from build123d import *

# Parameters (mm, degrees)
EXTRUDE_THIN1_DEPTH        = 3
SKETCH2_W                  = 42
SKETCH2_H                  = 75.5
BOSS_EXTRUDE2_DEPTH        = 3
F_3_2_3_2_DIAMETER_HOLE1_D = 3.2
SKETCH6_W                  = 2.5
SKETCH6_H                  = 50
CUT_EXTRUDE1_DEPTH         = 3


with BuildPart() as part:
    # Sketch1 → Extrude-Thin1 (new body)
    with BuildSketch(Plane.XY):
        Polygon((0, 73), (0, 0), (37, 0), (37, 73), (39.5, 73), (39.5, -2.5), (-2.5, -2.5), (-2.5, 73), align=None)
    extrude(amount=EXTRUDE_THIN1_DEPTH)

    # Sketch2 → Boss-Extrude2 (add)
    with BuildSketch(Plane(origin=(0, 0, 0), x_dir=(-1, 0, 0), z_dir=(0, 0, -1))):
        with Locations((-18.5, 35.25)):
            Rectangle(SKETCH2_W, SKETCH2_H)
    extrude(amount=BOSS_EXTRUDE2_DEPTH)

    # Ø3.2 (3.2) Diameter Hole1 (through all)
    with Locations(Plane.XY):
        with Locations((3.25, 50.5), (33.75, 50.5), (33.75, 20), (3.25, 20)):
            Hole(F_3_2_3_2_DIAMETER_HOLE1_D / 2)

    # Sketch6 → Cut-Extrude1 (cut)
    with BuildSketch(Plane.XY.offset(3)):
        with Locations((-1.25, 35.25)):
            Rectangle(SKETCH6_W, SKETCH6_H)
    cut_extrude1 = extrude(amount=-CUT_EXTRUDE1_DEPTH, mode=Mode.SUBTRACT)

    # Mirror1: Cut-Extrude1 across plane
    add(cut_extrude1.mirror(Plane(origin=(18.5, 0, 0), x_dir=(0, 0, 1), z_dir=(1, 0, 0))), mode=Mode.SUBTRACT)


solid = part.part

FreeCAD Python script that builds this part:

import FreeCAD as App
import Part
import Sketcher
from FreeCAD import Vector


def add_polygon(sketch, points):
    """Adds a closed chain of lines whose ends are joined by coincident constraints."""
    first, n = sketch.GeometryCount, len(points)
    for a, b in zip(points, points[1:] + points[:1]):
        sketch.addGeometry(Part.LineSegment(App.Vector(*a, 0), App.Vector(*b, 0)), False)
    for i in range(n):
        sketch.addConstraint(Sketcher.Constraint("Coincident", first + i, 2, first + (i + 1) % n, 1))

doc = App.newDocument("Part")
body = doc.addObject("PartDesign::Body", "Body")

sketch1 = doc.addObject("Sketcher::SketchObject", "Sketch")
body.addObject(sketch1)
sketch1.AttachmentSupport = (doc.XY_Plane, [""])
sketch1.MapMode = "FlatFace"
add_polygon(sketch1, [(0, 0), (0, 73), (-2.5, 73), (-2.5, -2.5), (39.5, -2.5), (39.5, 73), (37, 73), (37, 0)])
sketch1.addConstraint([
    Sketcher.Constraint("Vertical", 0),
    Sketcher.Constraint("Horizontal", 1),
    Sketcher.Constraint("Vertical", 2),
    Sketcher.Constraint("Horizontal", 3),
    Sketcher.Constraint("Vertical", 4),
    Sketcher.Constraint("Horizontal", 5),
    Sketcher.Constraint("Vertical", 6),
    Sketcher.Constraint("Horizontal", 7),
    Sketcher.Constraint("Coincident", 7, 2, -1, 1),
    Sketcher.Constraint("Horizontal", 1, 2, 4, 2),
    Sketcher.Constraint("Equal", 1, 5),
    Sketcher.Constraint("DistanceX", 3, 1, 3, 2, 42.0),
    Sketcher.Constraint("DistanceX", 7, 2, 7, 1, 37.0),
    Sketcher.Constraint("DistanceY", 0, 1, 0, 2, 73.0),
    Sketcher.Constraint("DistanceY", 2, 2, 2, 1, 75.5),
])
pad1 = doc.addObject("PartDesign::Pad", "Pad")
body.addObject(pad1)
pad1.Profile = sketch1
pad1.Length = 3

sketch2 = doc.addObject("Sketcher::SketchObject", "Sketch001")
body.addObject(sketch2)
sketch2.AttachmentSupport = (doc.XY_Plane, [""])
sketch2.MapMode = "FlatFace"
add_polygon(sketch2, [(40, 73), (40, -2), (-2, -2), (-2, 73)])
sketch2.addConstraint([
    Sketcher.Constraint("Vertical", 0),
    Sketcher.Constraint("Horizontal", 1),
    Sketcher.Constraint("Vertical", 2),
    Sketcher.Constraint("Horizontal", 3),
    Sketcher.Constraint("DistanceX", 1, 2, 1, 1, 42.0),
    Sketcher.Constraint("DistanceY", 0, 2, 0, 1, 75.5),
    Sketcher.Constraint("DistanceY", -1, 1, 2, 2, 73.0),
    Sketcher.Constraint("DistanceX", -1, 1, 0, 2, 39.5),
])
pad2 = doc.addObject("PartDesign::Pad", "Pad001")
body.addObject(pad2)
pad2.Profile = sketch2
pad2.Length = 3
pad2.Reversed = True

sketch3 = doc.addObject("Sketcher::SketchObject", "Sketch002")
body.addObject(sketch3)
sketch3.AttachmentSupport = (doc.XY_Plane, [""])
sketch3.MapMode = "FlatFace"
sketch3.addGeometry([
    Part.Circle(Vector(3.2, 50.5, 0), Vector(0, 0, 1), 1.6),
    Part.Circle(Vector(33.8, 50.5, 0), Vector(0, 0, 1), 1.6),
    Part.Circle(Vector(33.8, 20, 0), Vector(0, 0, 1), 1.6),
    Part.Circle(Vector(3.2, 20, 0), Vector(0, 0, 1), 1.6),
], False)
sketch3.addConstraint([
    Sketcher.Constraint("Equal", 0, 1),
    Sketcher.Constraint("Equal", 1, 2),
    Sketcher.Constraint("Equal", 2, 3),
    Sketcher.Constraint("Horizontal", 0, 3, 1, 3),
    Sketcher.Constraint("Horizontal", 2, 3, 3, 3),
    Sketcher.Constraint("Vertical", 1, 3, 2, 3),
    Sketcher.Constraint("Vertical", 0, 3, 3, 3),
    Sketcher.Constraint("Diameter", 0, 3.2),
    Sketcher.Constraint("DistanceY", -1, 1, 2, 3, 20.0),
    Sketcher.Constraint("DistanceY", -1, 1, 0, 3, 50.5),
    Sketcher.Constraint("DistanceX", 0, 3, 1, 3, 30.5),
    Sketcher.Constraint("DistanceX", -1, 1, 0, 3, 3.25),
])
doc.recompute()
hole = doc.addObject("PartDesign::Hole", "Hole")
body.addObject(hole)
hole.Profile = sketch3
hole.ThreadType = "None"
hole.Diameter = 3.2
hole.DepthType = "ThroughAll"

sketch4 = doc.addObject("Sketcher::SketchObject", "Sketch003")
body.addObject(sketch4)
sketch4.AttachmentSupport = (doc.XY_Plane, [""])
sketch4.MapMode = "FlatFace"
sketch4.AttachmentOffset = App.Placement(Vector(0, 0, 3), App.Rotation())
add_polygon(sketch4, [(-2.5, 60.2), (-2.5, 10.2), (0, 10.2), (0, 60.2)])
sketch4.addConstraint([
    Sketcher.Constraint("Vertical", 0),
    Sketcher.Constraint("Horizontal", 1),
    Sketcher.Constraint("Vertical", 2),
    Sketcher.Constraint("Horizontal", 3),
    Sketcher.Constraint("PointOnObject", 1, 2, -2),
    Sketcher.Constraint("DistanceY", 0, 2, 0, 1, 50.0),
    Sketcher.Constraint("DistanceX", 1, 1, 1, 2, 2.5),
    Sketcher.Constraint("DistanceY", -1, 1, 0, 2, 10.25),
])
pocket1 = doc.addObject("PartDesign::Pocket", "Pocket")
body.addObject(pocket1)
pocket1.Profile = sketch4
pocket1.Length = 3
doc.recompute()

datumplane = doc.addObject("PartDesign::Plane", "DatumPlane")
body.addObject(datumplane)
datumplane.AttachmentSupport = (doc.YZ_Plane, [""])
datumplane.MapMode = "FlatFace"
datumplane.AttachmentOffset = App.Placement(Vector(0, 0, 18.5), App.Rotation())
mirrored = doc.addObject("PartDesign::Mirrored", "Mirrored")
body.addObject(mirrored)
mirrored.Originals = [pocket1]
mirrored.MirrorPlane = (datumplane, [""])
body.Tip = mirrored

doc.recompute()
